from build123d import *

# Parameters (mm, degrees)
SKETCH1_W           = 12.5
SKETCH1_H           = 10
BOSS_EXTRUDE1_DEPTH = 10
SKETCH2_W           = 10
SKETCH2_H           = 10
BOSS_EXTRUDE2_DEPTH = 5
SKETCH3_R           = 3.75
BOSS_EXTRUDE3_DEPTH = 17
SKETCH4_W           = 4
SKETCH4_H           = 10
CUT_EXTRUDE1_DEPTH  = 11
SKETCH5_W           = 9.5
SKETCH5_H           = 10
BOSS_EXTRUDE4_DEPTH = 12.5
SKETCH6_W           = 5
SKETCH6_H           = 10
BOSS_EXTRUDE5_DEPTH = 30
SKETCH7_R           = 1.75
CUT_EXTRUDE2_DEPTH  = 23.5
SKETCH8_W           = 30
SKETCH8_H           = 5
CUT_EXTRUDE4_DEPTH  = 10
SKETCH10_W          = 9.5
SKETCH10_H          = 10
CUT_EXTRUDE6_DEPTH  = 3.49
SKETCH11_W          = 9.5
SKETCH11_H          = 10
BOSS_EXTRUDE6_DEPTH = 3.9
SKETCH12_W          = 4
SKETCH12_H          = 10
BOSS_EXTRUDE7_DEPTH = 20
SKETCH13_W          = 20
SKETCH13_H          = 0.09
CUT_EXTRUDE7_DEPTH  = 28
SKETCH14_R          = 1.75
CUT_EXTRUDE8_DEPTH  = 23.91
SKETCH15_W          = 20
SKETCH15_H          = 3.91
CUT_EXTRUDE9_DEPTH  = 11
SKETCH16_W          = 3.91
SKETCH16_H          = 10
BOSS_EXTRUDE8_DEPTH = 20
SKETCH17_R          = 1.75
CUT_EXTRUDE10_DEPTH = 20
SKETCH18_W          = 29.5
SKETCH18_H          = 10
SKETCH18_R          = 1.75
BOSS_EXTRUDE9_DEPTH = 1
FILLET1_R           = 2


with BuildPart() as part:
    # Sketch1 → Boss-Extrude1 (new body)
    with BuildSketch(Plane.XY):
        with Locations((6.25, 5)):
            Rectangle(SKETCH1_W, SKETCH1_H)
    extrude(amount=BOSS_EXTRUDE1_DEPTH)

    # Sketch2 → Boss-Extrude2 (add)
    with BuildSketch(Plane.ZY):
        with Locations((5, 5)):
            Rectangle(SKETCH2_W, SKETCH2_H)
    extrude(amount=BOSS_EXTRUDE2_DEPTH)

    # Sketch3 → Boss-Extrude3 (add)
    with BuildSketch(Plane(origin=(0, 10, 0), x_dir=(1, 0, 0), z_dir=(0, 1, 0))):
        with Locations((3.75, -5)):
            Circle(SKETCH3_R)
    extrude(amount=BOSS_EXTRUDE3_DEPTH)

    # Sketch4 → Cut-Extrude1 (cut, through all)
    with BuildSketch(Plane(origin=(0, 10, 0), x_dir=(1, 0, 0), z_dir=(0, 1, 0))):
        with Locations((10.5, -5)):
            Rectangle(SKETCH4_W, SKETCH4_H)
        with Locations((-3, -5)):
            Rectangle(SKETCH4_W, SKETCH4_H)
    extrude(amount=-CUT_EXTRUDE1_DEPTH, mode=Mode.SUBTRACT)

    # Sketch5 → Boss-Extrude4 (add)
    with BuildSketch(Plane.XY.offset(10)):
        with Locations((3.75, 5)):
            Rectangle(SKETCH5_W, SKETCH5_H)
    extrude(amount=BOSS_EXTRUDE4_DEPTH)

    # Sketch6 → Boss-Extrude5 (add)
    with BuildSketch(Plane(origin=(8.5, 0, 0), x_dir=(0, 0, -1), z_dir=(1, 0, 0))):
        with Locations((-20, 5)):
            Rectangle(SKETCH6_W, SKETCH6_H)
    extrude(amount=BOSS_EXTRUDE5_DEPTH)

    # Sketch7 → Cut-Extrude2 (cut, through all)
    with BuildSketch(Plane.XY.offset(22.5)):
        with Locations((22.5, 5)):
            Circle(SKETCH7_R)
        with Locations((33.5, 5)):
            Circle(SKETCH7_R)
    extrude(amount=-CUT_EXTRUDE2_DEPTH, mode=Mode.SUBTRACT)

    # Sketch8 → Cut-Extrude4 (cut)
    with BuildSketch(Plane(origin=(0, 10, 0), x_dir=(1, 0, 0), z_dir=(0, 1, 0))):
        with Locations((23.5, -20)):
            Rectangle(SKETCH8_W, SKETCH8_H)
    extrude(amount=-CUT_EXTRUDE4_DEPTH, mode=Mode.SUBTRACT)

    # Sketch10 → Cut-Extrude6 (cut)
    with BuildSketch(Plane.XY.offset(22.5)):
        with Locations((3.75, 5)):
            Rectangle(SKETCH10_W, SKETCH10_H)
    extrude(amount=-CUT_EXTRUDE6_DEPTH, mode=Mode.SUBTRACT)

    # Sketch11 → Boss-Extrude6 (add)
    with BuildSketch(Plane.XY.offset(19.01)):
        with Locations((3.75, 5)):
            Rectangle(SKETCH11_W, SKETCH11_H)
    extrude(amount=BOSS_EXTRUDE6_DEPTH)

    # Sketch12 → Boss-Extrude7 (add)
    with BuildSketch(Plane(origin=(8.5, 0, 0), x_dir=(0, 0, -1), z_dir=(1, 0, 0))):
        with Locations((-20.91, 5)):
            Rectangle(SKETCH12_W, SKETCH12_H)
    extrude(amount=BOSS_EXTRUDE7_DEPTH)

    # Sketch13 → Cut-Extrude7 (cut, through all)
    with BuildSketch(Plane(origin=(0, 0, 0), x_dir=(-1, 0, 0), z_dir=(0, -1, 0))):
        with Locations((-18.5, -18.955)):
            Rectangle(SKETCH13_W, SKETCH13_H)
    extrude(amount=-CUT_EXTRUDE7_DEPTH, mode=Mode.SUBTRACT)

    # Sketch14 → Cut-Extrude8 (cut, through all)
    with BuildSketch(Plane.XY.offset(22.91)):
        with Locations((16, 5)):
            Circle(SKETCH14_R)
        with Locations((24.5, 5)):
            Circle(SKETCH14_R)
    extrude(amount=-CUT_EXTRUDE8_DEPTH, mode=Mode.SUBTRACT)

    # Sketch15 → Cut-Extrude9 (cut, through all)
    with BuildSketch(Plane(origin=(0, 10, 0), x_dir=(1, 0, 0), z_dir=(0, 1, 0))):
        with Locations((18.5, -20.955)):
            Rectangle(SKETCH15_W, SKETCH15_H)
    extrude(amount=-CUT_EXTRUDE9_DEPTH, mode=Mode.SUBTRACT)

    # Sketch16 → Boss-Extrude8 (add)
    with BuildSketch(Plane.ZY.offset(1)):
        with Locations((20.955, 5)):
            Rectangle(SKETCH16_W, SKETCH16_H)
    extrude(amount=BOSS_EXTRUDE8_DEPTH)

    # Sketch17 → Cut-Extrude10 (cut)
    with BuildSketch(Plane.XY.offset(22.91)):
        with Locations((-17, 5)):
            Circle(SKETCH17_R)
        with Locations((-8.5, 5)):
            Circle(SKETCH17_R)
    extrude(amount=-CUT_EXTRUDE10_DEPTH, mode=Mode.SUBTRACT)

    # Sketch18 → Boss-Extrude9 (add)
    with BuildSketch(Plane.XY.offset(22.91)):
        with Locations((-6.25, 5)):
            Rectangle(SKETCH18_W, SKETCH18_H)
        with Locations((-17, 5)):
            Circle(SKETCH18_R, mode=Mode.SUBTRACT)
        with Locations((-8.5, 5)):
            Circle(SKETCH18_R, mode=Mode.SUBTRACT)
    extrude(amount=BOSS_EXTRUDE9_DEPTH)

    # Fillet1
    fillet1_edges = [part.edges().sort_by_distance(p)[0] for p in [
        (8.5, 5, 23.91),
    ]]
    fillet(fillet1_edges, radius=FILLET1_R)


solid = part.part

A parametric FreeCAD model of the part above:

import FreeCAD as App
import Part
import Sketcher

V = App.Vector
Q = App.Units.Quantity


def edges_at(feature, points):
    """Names of the edges that pass closest to the given points."""
    edges = feature.Shape.Edges
    near = lambda p: min(range(len(edges)), key=lambda i: edges[i].distToShape(Part.Vertex(*p))[0])
    return sorted({f"Edge{near(p) + 1}" for p in points})


def add_polygon(sketch, points):
    """Adds a closed chain of lines whose ends are joined by coincident constraints."""
    first, n = sketch.GeometryCount, len(points)
    for a, b in zip(points, points[1:] + points[:1]):
        sketch.addGeometry(Part.LineSegment(App.Vector(*a, 0), App.Vector(*b, 0)), False)
    for i in range(n):
        sketch.addConstraint(Sketcher.Constraint("Coincident", first + i, 2, first + (i + 1) % n, 1))

doc = App.newDocument("Part")
body = doc.addObject("PartDesign::Body", "Body")

sketch1 = body.newObject("Sketcher::SketchObject", "Sketch")
sketch1.AttachmentSupport = (doc.getObject("XY_Plane"), [""])
sketch1.MapMode = "FlatFace"
add_polygon(sketch1, [(0, 10), (0, 0), (12, 0), (12, 10)])
sketch1.addConstraint([
    Sketcher.Constraint("Vertical", 0),
    Sketcher.Constraint("Horizontal", 1),
    Sketcher.Constraint("Vertical", 2),
    Sketcher.Constraint("Horizontal", 3),
    Sketcher.Constraint("Coincident", 0, 2, -1, 1),
    Sketcher.Constraint("DistanceY", 0, 2, 0, 1, Q("10 mm")),
    Sketcher.Constraint("DistanceX", 1, 1, 1, 2, Q("12.5 mm")),
])
pad1 = body.newObject("PartDesign::Pad", "Pad")
pad1.Profile = sketch1
pad1.Length = 10

sketch2 = body.newObject("Sketcher::SketchObject", "Sketch001")
sketch2.AttachmentSupport = (doc.getObject("YZ_Plane"), [""])
sketch2.MapMode = "FlatFace"
add_polygon(sketch2, [(10, 0), (0, 0), (0, 10), (10, 10)])
sketch2.addConstraint([
    Sketcher.Constraint("Horizontal", 0),
    Sketcher.Constraint("Vertical", 1),
    Sketcher.Constraint("Horizontal", 2),
    Sketcher.Constraint("Vertical", 3),
    Sketcher.Constraint("Coincident", 0, 2, -1, 1),
    Sketcher.Constraint("Equal", 2, 1),
    Sketcher.Constraint("DistanceX", 0, 2, 0, 1, Q("10 mm")),
])
pad2 = body.newObject("PartDesign::Pad", "Pad001")
pad2.Profile = sketch2
pad2.Length = 5
pad2.Reversed = True

sketch3 = body.newObject("Sketcher::SketchObject", "Sketch002")
sketch3.AttachmentSupport = (doc.getObject("XZ_Plane"), [""])
sketch3.MapMode = "FlatFace"
sketch3.AttachmentOffset = App.Placement(V(0, 0, -10), App.Rotation())
sketch3.addGeometry(Part.Circle(V(3.8, 5, 0), V(0, 0, 1), 3.8), False)
sketch3.addConstraint([
    Sketcher.Constraint("Diameter", 0, Q("7.5 mm")),
    Sketcher.Constraint("DistanceY", -1, 1, 0, 3, Q("5 mm")),
    Sketcher.Constraint("DistanceX", -1, 1, 0, 3, Q("3.75 mm")),
])
pad3 = body.newObject("PartDesign::Pad", "Pad002")
pad3.Profile = sketch3
pad3.Length = 17
pad3.Reversed = True

sketch4 = body.newObject("Sketcher::SketchObject", "Sketch003")
sketch4.AttachmentSupport = (doc.getObject("XZ_Plane"), [""])
sketch4.MapMode = "FlatFace"
sketch4.AttachmentOffset = App.Placement(V(0, 0, -10), App.Rotation())
add_polygon(sketch4, [(8.5, 0), (8.5, 10), (12.5, 10), (12.5, 0)])
add_polygon(sketch4, [(-5, 0), (-5, 10), (-1, 10), (-1, 0)])
sketch4.addConstraint([
    Sketcher.Constraint("Vertical", 0),
    Sketcher.Constraint("Horizontal", 1),
    Sketcher.Constraint("Vertical", 2),
    Sketcher.Constraint("Horizontal", 3),
    Sketcher.Constraint("Vertical", 4),
    Sketcher.Constraint("Horizontal", 5),
    Sketcher.Constraint("Vertical", 6),
    Sketcher.Constraint("Horizontal", 7),
    Sketcher.Constraint("PointOnObject", 2, 2, -1),
    Sketcher.Constraint("PointOnObject", 6, 2, -1),
    Sketcher.Constraint("Horizontal", 1, 2, 4, 2),
    Sketcher.Constraint("Equal", 3, 5),
    Sketcher.Constraint("DistanceX", 1, 1, 1, 2, Q("4 mm")),
    Sketcher.Constraint("DistanceY", 0, 1, 0, 2, Q("10 mm")),
    Sketcher.Constraint("DistanceX", 4, 2, -1, 1, Q("5 mm")),
    Sketcher.Constraint("DistanceX", -1, 1, 0, 2, Q("8.5 mm")),
])
pocket1 = body.newObject("PartDesign::Pocket", "Pocket")
pocket1.Profile = sketch4
pocket1.Type = "ThroughAll"
pocket1.Reversed = True

sketch5 = body.newObject("Sketcher::SketchObject", "Sketch004")
sketch5.AttachmentSupport = (doc.getObject("XY_Plane"), [""])
sketch5.MapMode = "FlatFace"
sketch5.AttachmentOffset = App.Placement(V(0, 0, 10), App.Rotation())
add_polygon(sketch5, [(-1, 10), (-1, 0), (8, 0), (8, 10)])
sketch5.addConstraint([
    Sketcher.Constraint("Vertical", 0),
    Sketcher.Constraint("Horizontal", 1),
    Sketcher.Constraint("Vertical", 2),
    Sketcher.Constraint("Horizontal", 3),
    Sketcher.Constraint("PointOnObject", 0, 2, -1),
    Sketcher.Constraint("DistanceY", 0, 2, 0, 1, Q("10 mm")),
    Sketcher.Constraint("DistanceX", 1, 1, 1, 2, Q("9.5 mm")),
    Sketcher.Constraint("DistanceX", 0, 2, -1, 1, Q("1 mm")),
])
pad4 = body.newObject("PartDesign::Pad", "Pad003")
pad4.Profile = sketch5
pad4.Length = 12.5

sketch6 = body.newObject("Sketcher::SketchObject", "Sketch005")
sketch6.AttachmentSupport = (doc.getObject("YZ_Plane"), [""])
sketch6.MapMode = "FlatFace"
sketch6.AttachmentOffset = App.Placement(V(0, 0, 8.5), App.Rotation())
add_polygon(sketch6, [(10, 22), (0, 22), (0, 18), (10, 18)])
sketch6.addConstraint([
    Sketcher.Constraint("Horizontal", 0),
    Sketcher.Constraint("Vertical", 1),
    Sketcher.Constraint("Horizontal", 2),
    Sketcher.Constraint("Vertical", 3),
    Sketcher.Constraint("PointOnObject", 0, 2, -2),
    Sketcher.Constraint("DistanceX", 0, 2, 0, 1, Q("10 mm")),
    Sketcher.Constraint("DistanceY", 1, 2, 1, 1, Q("5 mm")),
    Sketcher.Constraint("DistanceY", -1, 1, 0, 2, Q("22.5 mm")),
])
pad5 = body.newObject("PartDesign::Pad", "Pad004")
pad5.Profile = sketch6
pad5.Length = 30

sketch7 = body.newObject("Sketcher::SketchObject", "Sketch006")
sketch7.AttachmentSupport = (doc.getObject("XY_Plane"), [""])
sketch7.MapMode = "FlatFace"
sketch7.AttachmentOffset = App.Placement(V(0, 0, 22.5), App.Rotation())
sketch7.addGeometry([
    Part.Circle(V(22.5, 5, 0), V(0, 0, 1), 1.8),
    Part.Circle(V(33.5, 5, 0), V(0, 0, 1), 1.8),
], False)
sketch7.addConstraint([
    Sketcher.Constraint("Equal", 0, 1),
    Sketcher.Constraint("Horizontal", 0, 3, 1, 3),
    Sketcher.Constraint("Diameter", 0, Q("3.5 mm")),
    Sketcher.Constraint("DistanceY", -1, 1, 0, 3, Q("5 mm")),
    Sketcher.Constraint("DistanceX", 0, 3, 1, 3, Q("11 mm")),
    Sketcher.Constraint("DistanceX", -1, 1, 0, 3, Q("22.5 mm")),
])
pocket2 = body.newObject("PartDesign::Pocket", "Pocket001")
pocket2.Profile = sketch7
pocket2.Type = "ThroughAll"

sketch8 = body.newObject("Sketcher::SketchObject", "Sketch007")
sketch8.AttachmentSupport = (doc.getObject("XZ_Plane"), [""])
sketch8.MapMode = "FlatFace"
sketch8.AttachmentOffset = App.Placement(V(0, 0, -10), App.Rotation())
add_polygon(sketch8, [(8, 18), (8, 22), (38, 22), (38, 18)])
sketch8.addConstraint([
    Sketcher.Constraint("Vertical", 0),
    Sketcher.Constraint("Horizontal", 1),
    Sketcher.Constraint("Vertical", 2),
    Sketcher.Constraint("Horizontal", 3),
    Sketcher.Constraint("DistanceX", 1, 1, 1, 2, Q("30 mm")),
    Sketcher.Constraint("DistanceY", 0, 1, 0, 2, Q("5 mm")),
    Sketcher.Constraint("DistanceX", -1, 1, 0, 2, Q("8.5 mm")),
    Sketcher.Constraint("DistanceY", -1, 1, 0, 2, Q("22.5 mm")),
])
pocket3 = body.newObject("PartDesign::Pocket", "Pocket002")
pocket3.Profile = sketch8
pocket3.Length = 10
pocket3.Reversed = True

sketch9 = body.newObject("Sketcher::SketchObject", "Sketch008")
sketch9.AttachmentSupport = (doc.getObject("XY_Plane"), [""])
sketch9.MapMode = "FlatFace"
sketch9.AttachmentOffset = App.Placement(V(0, 0, 22.5), App.Rotation())
add_polygon(sketch9, [(-1, 10), (-1, 0), (8, 0), (8, 10)])
sketch9.addConstraint([
    Sketcher.Constraint("Vertical", 0),
    Sketcher.Constraint("Horizontal", 1),
    Sketcher.Constraint("Vertical", 2),
    Sketcher.Constraint("Horizontal", 3),
    Sketcher.Constraint("PointOnObject", 0, 2, -1),
    Sketcher.Constraint("DistanceY", 0, 2, 0, 1, Q("10 mm")),
    Sketcher.Constraint("DistanceX", 1, 1, 1, 2, Q("9.5 mm")),
    Sketcher.Constraint("DistanceX", 0, 2, -1, 1, Q("1 mm")),
])
pocket4 = body.newObject("PartDesign::Pocket", "Pocket003")
pocket4.Profile = sketch9
pocket4.Length = 3.49

sketch10 = body.newObject("Sketcher::SketchObject", "Sketch009")
sketch10.AttachmentSupport = (doc.getObject("XY_Plane"), [""])
sketch10.MapMode = "FlatFace"
sketch10.AttachmentOffset = App.Placement(V(0, 0, 19.01), App.Rotation())
add_polygon(sketch10, [(-1, 10), (-1, 0), (8, 0), (8, 10)])
sketch10.addConstraint([
    Sketcher.Constraint("Vertical", 0),
    Sketcher.Constraint("Horizontal", 1),
    Sketcher.Constraint("Vertical", 2),
    Sketcher.Constraint("Horizontal", 3),
    Sketcher.Constraint("PointOnObject", 0, 2, -1),
    Sketcher.Constraint("DistanceY", 0, 2, 0, 1, Q("10 mm")),
    Sketcher.Constraint("DistanceX", 1, 1, 1, 2, Q("9.5 mm")),
    Sketcher.Constraint("DistanceX", 0, 2, -1, 1, Q("1 mm")),
])
pad6 = body.newObject("PartDesign::Pad", "Pad005")
pad6.Profile = sketch10
pad6.Length = 3.9

sketch11 = body.newObject("Sketcher::SketchObject", "Sketch010")
sketch11.AttachmentSupport = (doc.getObject("YZ_Plane"), [""])
sketch11.MapMode = "FlatFace"
sketch11.AttachmentOffset = App.Placement(V(0, 0, 8.5), App.Rotation())
add_polygon(sketch11, [(10, 22.9), (0, 22.9), (0, 18.9), (10, 18.9)])
sketch11.addConstraint([
    Sketcher.Constraint("Horizontal", 0),
    Sketcher.Constraint("Vertical", 1),
    Sketcher.Constraint("Horizontal", 2),
    Sketcher.Constraint("Vertical", 3),
    Sketcher.Constraint("PointOnObject", 0, 2, -2),
    Sketcher.Constraint("DistanceX", 0, 2, 0, 1, Q("10 mm")),
    Sketcher.Constraint("DistanceY", 1, 2, 1, 1, Q("4 mm")),
    Sketcher.Constraint("DistanceY", -1, 1, 0, 2, Q("22.91 mm")),
])
pad7 = body.newObject("PartDesign::Pad", "Pad006")
pad7.Profile = sketch11
pad7.Length = 20

sketch12 = body.newObject("Sketcher::SketchObject", "Sketch011")
sketch12.AttachmentSupport = (doc.getObject("XZ_Plane"), [""])
sketch12.MapMode = "FlatFace"
add_polygon(sketch12, [(28.5, 18.91), (28.5, 19), (8.5, 19), (8.5, 18.91)])
sketch12.addConstraint([
    Sketcher.Constraint("Vertical", 0),
    Sketcher.Constraint("Horizontal", 1),
    Sketcher.Constraint("Vertical", 2),
    Sketcher.Constraint("Horizontal", 3),
    Sketcher.Constraint("DistanceX", 1, 2, 1, 1, Q("20 mm")),
    Sketcher.Constraint("DistanceY", -1, 1, 0, 2, Q("19 mm")),
    Sketcher.Constraint("DistanceY", 0, 1, 0, 2, Q("0.09 mm")),
    Sketcher.Constraint("DistanceX", -1, 1, 0, 2, Q("28.5 mm")),
])
pocket5 = body.newObject("PartDesign::Pocket", "Pocket004")
pocket5.Profile = sketch12
pocket5.Type = "ThroughAll"

sketch13 = body.newObject("Sketcher::SketchObject", "Sketch012")
sketch13.AttachmentSupport = (doc.getObject("XY_Plane"), [""])
sketch13.MapMode = "FlatFace"
sketch13.AttachmentOffset = App.Placement(V(0, 0, 22.91), App.Rotation())
sketch13.addGeometry([
    Part.Circle(V(16, 5, 0), V(0, 0, 1), 1.8),
    Part.Circle(V(24.5, 5, 0), V(0, 0, 1), 1.8),
], False)
sketch13.addConstraint([
    Sketcher.Constraint("Equal", 0, 1),
    Sketcher.Constraint("Horizontal", 0, 3, 1, 3),
    Sketcher.Constraint("Diameter", 0, Q("3.5 mm")),
    Sketcher.Constraint("DistanceX", -1, 1, 0, 3, Q("16 mm")),
    Sketcher.Constraint("DistanceY", -1, 1, 0, 3, Q("5 mm")),
    Sketcher.Constraint("DistanceX", -1, 1, 1, 3, Q("24.5 mm")),
])
pocket6 = body.newObject("PartDesign::Pocket", "Pocket005")
pocket6.Profile = sketch13
pocket6.Type = "ThroughAll"

sketch14 = body.newObject("Sketcher::SketchObject", "Sketch013")
sketch14.AttachmentSupport = (doc.getObject("XZ_Plane"), [""])
sketch14.MapMode = "FlatFace"
sketch14.AttachmentOffset = App.Placement(V(0, 0, -10), App.Rotation())
add_polygon(sketch14, [(8.5, 19), (8.5, 22.9), (28.5, 22.9), (28.5, 19)])
sketch14.addConstraint([
    Sketcher.Constraint("Vertical", 0),
    Sketcher.Constraint("Horizontal", 1),
    Sketcher.Constraint("Vertical", 2),
    Sketcher.Constraint("Horizontal", 3),
    Sketcher.Constraint("DistanceX", 1, 1, 1, 2, Q("20 mm")),
    Sketcher.Constraint("DistanceY", -1, 1, 2, 2, Q("19 mm")),
    Sketcher.Constraint("DistanceY", 0, 1, 0, 2, Q("3.91 mm")),
    Sketcher.Constraint("DistanceX", -1, 1, 0, 2, Q("8.5 mm")),
])
pocket7 = body.newObject("PartDesign::Pocket", "Pocket006")
pocket7.Profile = sketch14
pocket7.Type = "ThroughAll"
pocket7.Reversed = True

sketch15 = body.newObject("Sketcher::SketchObject", "Sketch014")
sketch15.AttachmentSupport = (doc.getObject("YZ_Plane"), [""])
sketch15.MapMode = "FlatFace"
sketch15.AttachmentOffset = App.Placement(V(0, 0, -1), App.Rotation())
add_polygon(sketch15, [(10, 19), (0, 19), (0, 22.9), (10, 22.9)])
sketch15.addConstraint([
    Sketcher.Constraint("Horizontal", 0),
    Sketcher.Constraint("Vertical", 1),
    Sketcher.Constraint("Horizontal", 2),
    Sketcher.Constraint("Vertical", 3),
    Sketcher.Constraint("PointOnObject", 0, 2, -2),
    Sketcher.Constraint("DistanceX", 0, 2, 0, 1, Q("10 mm")),
    Sketcher.Constraint("DistanceY", -1, 1, 0, 2, Q("19 mm")),
    Sketcher.Constraint("DistanceY", 1, 1, 1, 2, Q("3.91 mm")),
])
pad8 = body.newObject("PartDesign::Pad", "Pad007")
pad8.Profile = sketch15
pad8.Length = 20
pad8.Reversed = True

sketch16 = body.newObject("Sketcher::SketchObject", "Sketch015")
sketch16.AttachmentSupport = (doc.getObject("XY_Plane"), [""])
sketch16.MapMode = "FlatFace"
sketch16.AttachmentOffset = App.Placement(V(0, 0, 22.91), App.Rotation())
sketch16.addGeometry([
    Part.Circle(V(-17, 5, 0), V(0, 0, 1), 1.8),
    Part.Circle(V(-8.5, 5, 0), V(0, 0, 1), 1.8),
], False)
sketch16.addConstraint([
    Sketcher.Constraint("Equal", 0, 1),
    Sketcher.Constraint("Horizontal", 0, 3, 1, 3),
    Sketcher.Constraint("Diameter", 0, Q("3.5 mm")),
    Sketcher.Constraint("DistanceX", 0, 3, -1, 1, Q("17 mm")),
    Sketcher.Constraint("DistanceY", -1, 1, 0, 3, Q("5 mm")),
    Sketcher.Constraint("DistanceX", 1, 3, -1, 1, Q("8.5 mm")),
])
pocket8 = body.newObject("PartDesign::Pocket", "Pocket007")
pocket8.Profile = sketch16
pocket8.Length = 20

sketch17 = body.newObject("Sketcher::SketchObject", "Sketch016")
sketch17.AttachmentSupport = (doc.getObject("XY_Plane"), [""])
sketch17.MapMode = "FlatFace"
sketch17.AttachmentOffset = App.Placement(V(0, 0, 22.91), App.Rotation())
add_polygon(sketch17, [(-21, 10), (-21, 0), (8.5, 0), (8.5, 10)])
sketch17.addGeometry(Part.Circle(V(-17, 5, 0), V(0, 0, 1), 1.8), False)
sketch17.addGeometry(Part.Circle(V(-8.5, 5, 0), V(0, 0, 1), 1.8), False)
sketch17.addConstraint([
    Sketcher.Constraint("Vertical", 0),
    Sketcher.Constraint("Horizontal", 1),
    Sketcher.Constraint("Vertical", 2),
    Sketcher.Constraint("Horizontal", 3),
    Sketcher.Constraint("Equal", 4, 5),
    Sketcher.Constraint("PointOnObject", 0, 2, -1),
    Sketcher.Constraint("Horizontal", 4, 3, 5, 3),
    Sketcher.Constraint("Diameter", 4, Q("3.5 mm")),
    Sketcher.Constraint("DistanceY", 0, 2, 0, 1, Q("10 mm")),
    Sketcher.Constraint("DistanceX", 1, 1, 1, 2, Q("29.5 mm")),
    Sketcher.Constraint("DistanceX", 4, 3, -1, 1, Q("17 mm")),
    Sketcher.Constraint("DistanceY", -1, 1, 4, 3, Q("5 mm")),
    Sketcher.Constraint("DistanceX", 0, 2, -1, 1, Q("21 mm")),
    Sketcher.Constraint("DistanceX", 5, 3, 1, 2, Q("17 mm")),
])
pad9 = body.newObject("PartDesign::Pad", "Pad008")
pad9.Profile = sketch17
pad9.Length = 1
doc.recompute()

fillet = body.newObject("PartDesign::Fillet", "Fillet")
fillet.Base = (pad9, edges_at(pad9, [(8.5, 5, 23.91)]))
fillet.Radius = 2

doc.recompute()
